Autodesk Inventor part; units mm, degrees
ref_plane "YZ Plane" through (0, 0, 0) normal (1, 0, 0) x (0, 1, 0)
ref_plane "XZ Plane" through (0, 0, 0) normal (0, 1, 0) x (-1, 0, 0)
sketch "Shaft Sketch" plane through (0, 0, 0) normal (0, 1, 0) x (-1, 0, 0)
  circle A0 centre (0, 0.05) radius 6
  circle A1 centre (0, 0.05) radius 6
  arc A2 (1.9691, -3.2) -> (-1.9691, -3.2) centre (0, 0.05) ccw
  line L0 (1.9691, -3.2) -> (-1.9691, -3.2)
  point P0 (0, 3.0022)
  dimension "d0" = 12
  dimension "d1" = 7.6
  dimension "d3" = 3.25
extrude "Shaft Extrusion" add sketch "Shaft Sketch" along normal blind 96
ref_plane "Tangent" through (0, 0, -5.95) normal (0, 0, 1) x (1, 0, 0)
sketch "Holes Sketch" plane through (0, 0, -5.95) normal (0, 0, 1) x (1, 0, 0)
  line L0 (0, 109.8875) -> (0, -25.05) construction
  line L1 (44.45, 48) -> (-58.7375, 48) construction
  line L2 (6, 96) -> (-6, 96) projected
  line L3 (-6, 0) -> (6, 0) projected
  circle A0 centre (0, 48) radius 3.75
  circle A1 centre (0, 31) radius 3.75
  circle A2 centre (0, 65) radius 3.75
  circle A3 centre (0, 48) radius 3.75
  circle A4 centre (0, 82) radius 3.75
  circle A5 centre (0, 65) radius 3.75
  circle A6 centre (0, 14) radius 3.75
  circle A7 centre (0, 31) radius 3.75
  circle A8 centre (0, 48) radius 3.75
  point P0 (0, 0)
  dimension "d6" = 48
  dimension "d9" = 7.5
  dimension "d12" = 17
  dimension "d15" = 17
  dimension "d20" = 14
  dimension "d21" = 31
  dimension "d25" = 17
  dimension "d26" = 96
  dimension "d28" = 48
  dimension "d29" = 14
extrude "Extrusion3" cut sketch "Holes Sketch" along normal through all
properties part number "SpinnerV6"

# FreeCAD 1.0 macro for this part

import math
import FreeCAD as App
import Part
import Sketcher

V = App.Vector
Q = App.Units.Quantity

doc = App.newDocument("Part")
body = doc.addObject("PartDesign::Body", "Body")

# Sketch on XZ plane
sketch1 = body.newObject("Sketcher::SketchObject", "Sketch")
sketch1.AttachmentSupport = (doc.getObject("XZ_Plane"), [""])
sketch1.MapMode = "FlatFace"
sketch1.addGeometry([
    Part.Circle(V(0, 0.1, 0), V(0, 0, 1), 6),
    Part.ArcOfCircle(Part.Circle(V(0, 0.1, 0), V(0, 0, 1), 3.8), math.radians(-59), math.radians(239)),
    Part.LineSegment(V(-2, -3.2, 0), V(2, -3.2, 0)),
], False)
sketch1.addConstraint([
    Sketcher.Constraint("Coincident", 1, 1, 2, 2),
    Sketcher.Constraint("Coincident", 2, 1, 1, 2),
    Sketcher.Constraint("Horizontal", 2),
    Sketcher.Constraint("Coincident", 1, 3, 0, 3),
    Sketcher.Constraint("PointOnObject", 0, 3, -2),
    Sketcher.Constraint("Diameter", 0, Q("12 mm")),
    Sketcher.Constraint("Radius", 1, Q("3.8 mm")),
    Sketcher.Constraint("DistanceY", 1, 1, 0, 3, Q("3.25 mm")),
    Sketcher.Constraint("DistanceY", 1, 1, -1, 1, Q("3.2 mm")),
])
pad1 = body.newObject("PartDesign::Pad", "Pad")
pad1.Profile = sketch1
pad1.Length = 96
pad1.Reversed = True

# Sketch on XY plane
sketch2 = body.newObject("Sketcher::SketchObject", "Sketch001")
sketch2.AttachmentSupport = (doc.getObject("XY_Plane"), [""])
sketch2.MapMode = "FlatFace"
sketch2.AttachmentOffset = App.Placement(V(0, 0, -5.95), App.Rotation())
sketch2.addGeometry([
    Part.Circle(V(0, 48, 0), V(0, 0, 1), 3.8),  # 0
    Part.Circle(V(0, 31, 0), V(0, 0, 1), 3.8),  # 1
    Part.Circle(V(0, 65, 0), V(0, 0, 1), 3.8),  # 2
    Part.Circle(V(0, 82, 0), V(0, 0, 1), 3.8),  # 3
    Part.Circle(V(0, 14, 0), V(0, 0, 1), 3.8),  # 4
], False)
sketch2.addConstraint([
    Sketcher.Constraint("Equal", 0, 1),
    Sketcher.Constraint("Equal", 1, 2),
    Sketcher.Constraint("Equal", 2, 3),
    Sketcher.Constraint("Equal", 3, 4),
    Sketcher.Constraint("PointOnObject", 0, 3, -2),
    Sketcher.Constraint("PointOnObject", 1, 3, -2),
    Sketcher.Constraint("PointOnObject", 2, 3, -2),
    Sketcher.Constraint("PointOnObject", 3, 3, -2),
    Sketcher.Constraint("PointOnObject", 4, 3, -2),
    Sketcher.Constraint("Diameter", 0, Q("7.5 mm")),
    Sketcher.Constraint("DistanceY", -1, 1, 0, 3, Q("48 mm")),
    Sketcher.Constraint("DistanceY", -1, 1, 1, 3, Q("31 mm")),
    Sketcher.Constraint("DistanceY", -1, 1, 4, 3, Q("14 mm")),
    Sketcher.Constraint("DistanceY", 0, 3, 2, 3, Q("17 mm")),
    Sketcher.Constraint("DistanceY", 2, 3, 3, 3, Q("17 mm")),
])
pocket1 = body.newObject("PartDesign::Pocket", "Pocket")
pocket1.Profile = sketch2
pocket1.Type = "ThroughAll"
pocket1.Reversed = True

doc.recompute()
